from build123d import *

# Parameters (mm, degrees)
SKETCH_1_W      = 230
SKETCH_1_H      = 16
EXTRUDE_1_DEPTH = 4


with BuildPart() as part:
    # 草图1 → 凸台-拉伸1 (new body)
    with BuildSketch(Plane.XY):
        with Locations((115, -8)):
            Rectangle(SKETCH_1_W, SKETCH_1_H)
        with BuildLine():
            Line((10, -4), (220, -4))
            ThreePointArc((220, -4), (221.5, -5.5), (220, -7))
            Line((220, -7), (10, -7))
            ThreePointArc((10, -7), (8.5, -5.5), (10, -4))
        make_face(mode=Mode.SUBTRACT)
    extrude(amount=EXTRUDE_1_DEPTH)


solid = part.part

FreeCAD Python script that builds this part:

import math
import FreeCAD as App
import Part
import Sketcher

V = App.Vector


def add_polygon(sketch, points):
    """Adds a closed chain of lines whose ends are joined by coincident constraints."""
    first, n = sketch.GeometryCount, len(points)
    for a, b in zip(points, points[1:] + points[:1]):
        sketch.addGeometry(Part.LineSegment(App.Vector(*a, 0), App.Vector(*b, 0)), False)
    for i in range(n):
        sketch.addConstraint(Sketcher.Constraint("Coincident", first + i, 2, first + (i + 1) % n, 1))

doc = App.newDocument("Part")
params = doc.addObject("Spreadsheet::Sheet", "Params")
for row, (alias, value) in enumerate([
    ("sketch1_radius", "1.5 mm"),
    ("sketch1_width", "230 mm"),
    ("sketch1_width2", "210 mm"),
    ("sketch1_height", "16 mm"),
    ("pad1_length", "4 mm"),
], start=1):
    params.set(f"A{row}", alias)
    params.set(f"B{row}", "=" + value)
    params.setAlias(f"B{row}", alias)

body = doc.addObject("PartDesign::Body", "Body")

# Sketch on XY plane
sketch1 = doc.addObject("Sketcher::SketchObject", "Sketch")
body.addObject(sketch1)
sketch1.AttachmentSupport = (doc.XY_Plane, [""])
sketch1.MapMode = "FlatFace"
add_polygon(sketch1, [(0, 0), (0, -16), (230, -16), (230, 0)])  # lines 0-3
sketch1.addGeometry(Part.ArcOfCircle(Part.Circle(V(10, -5.5, 0), V(0, 0, 1), 1.5), math.radians(90), math.radians(270)), False)  # 4
sketch1.addGeometry(Part.LineSegment(V(10, -4, 0), V(220, -4, 0)), False)  # 5
sketch1.addGeometry(Part.ArcOfCircle(Part.Circle(V(220, -5.5, 0), V(0, 0, 1), 1.5), math.radians(-90), math.radians(90)), False)  # 6
sketch1.addGeometry(Part.LineSegment(V(220, -7, 0), V(10, -7, 0)), False)  # 7
sketch1.addConstraint([
    Sketcher.Constraint("Tangent", 4, 1, 5, 1),
    Sketcher.Constraint("Tangent", 5, 2, 6, 2),
    Sketcher.Constraint("Tangent", 6, 1, 7, 1),
    Sketcher.Constraint("Tangent", 7, 2, 4, 2),
    Sketcher.Constraint("Vertical", 0),
    Sketcher.Constraint("Horizontal", 1),
    Sketcher.Constraint("Vertical", 2),
    Sketcher.Constraint("Horizontal", 3),
    Sketcher.Constraint("Horizontal", 5),
    Sketcher.Constraint("Horizontal", 7),
    Sketcher.Constraint("Coincident", 3, 2, -1, 1),
    Sketcher.Constraint("Radius", 4, 1.5),
    Sketcher.Constraint("DistanceX", 1, 1, 1, 2, 230.0),
    Sketcher.Constraint("DistanceX", 5, 1, 5, 2, 210.0),
    Sketcher.Constraint("DistanceY", 0, 2, 0, 1, 16.0),
    Sketcher.Constraint("DistanceX", -1, 1, 4, 3, 10.0),
    Sketcher.Constraint("DistanceY", 4, 1, -1, 1, 4.0),
])
sketch1.setExpression("Constraints[15]", "Params.sketch1_radius")
sketch1.setExpression("Constraints[16]", "Params.sketch1_width")
sketch1.setExpression("Constraints[17]", "Params.sketch1_width2")
sketch1.setExpression("Constraints[18]", "Params.sketch1_height")
pad1 = doc.addObject("PartDesign::Pad", "Pad")
body.addObject(pad1)
pad1.Profile = sketch1
pad1.setExpression("Length", "Params.pad1_length")

doc.recompute()
